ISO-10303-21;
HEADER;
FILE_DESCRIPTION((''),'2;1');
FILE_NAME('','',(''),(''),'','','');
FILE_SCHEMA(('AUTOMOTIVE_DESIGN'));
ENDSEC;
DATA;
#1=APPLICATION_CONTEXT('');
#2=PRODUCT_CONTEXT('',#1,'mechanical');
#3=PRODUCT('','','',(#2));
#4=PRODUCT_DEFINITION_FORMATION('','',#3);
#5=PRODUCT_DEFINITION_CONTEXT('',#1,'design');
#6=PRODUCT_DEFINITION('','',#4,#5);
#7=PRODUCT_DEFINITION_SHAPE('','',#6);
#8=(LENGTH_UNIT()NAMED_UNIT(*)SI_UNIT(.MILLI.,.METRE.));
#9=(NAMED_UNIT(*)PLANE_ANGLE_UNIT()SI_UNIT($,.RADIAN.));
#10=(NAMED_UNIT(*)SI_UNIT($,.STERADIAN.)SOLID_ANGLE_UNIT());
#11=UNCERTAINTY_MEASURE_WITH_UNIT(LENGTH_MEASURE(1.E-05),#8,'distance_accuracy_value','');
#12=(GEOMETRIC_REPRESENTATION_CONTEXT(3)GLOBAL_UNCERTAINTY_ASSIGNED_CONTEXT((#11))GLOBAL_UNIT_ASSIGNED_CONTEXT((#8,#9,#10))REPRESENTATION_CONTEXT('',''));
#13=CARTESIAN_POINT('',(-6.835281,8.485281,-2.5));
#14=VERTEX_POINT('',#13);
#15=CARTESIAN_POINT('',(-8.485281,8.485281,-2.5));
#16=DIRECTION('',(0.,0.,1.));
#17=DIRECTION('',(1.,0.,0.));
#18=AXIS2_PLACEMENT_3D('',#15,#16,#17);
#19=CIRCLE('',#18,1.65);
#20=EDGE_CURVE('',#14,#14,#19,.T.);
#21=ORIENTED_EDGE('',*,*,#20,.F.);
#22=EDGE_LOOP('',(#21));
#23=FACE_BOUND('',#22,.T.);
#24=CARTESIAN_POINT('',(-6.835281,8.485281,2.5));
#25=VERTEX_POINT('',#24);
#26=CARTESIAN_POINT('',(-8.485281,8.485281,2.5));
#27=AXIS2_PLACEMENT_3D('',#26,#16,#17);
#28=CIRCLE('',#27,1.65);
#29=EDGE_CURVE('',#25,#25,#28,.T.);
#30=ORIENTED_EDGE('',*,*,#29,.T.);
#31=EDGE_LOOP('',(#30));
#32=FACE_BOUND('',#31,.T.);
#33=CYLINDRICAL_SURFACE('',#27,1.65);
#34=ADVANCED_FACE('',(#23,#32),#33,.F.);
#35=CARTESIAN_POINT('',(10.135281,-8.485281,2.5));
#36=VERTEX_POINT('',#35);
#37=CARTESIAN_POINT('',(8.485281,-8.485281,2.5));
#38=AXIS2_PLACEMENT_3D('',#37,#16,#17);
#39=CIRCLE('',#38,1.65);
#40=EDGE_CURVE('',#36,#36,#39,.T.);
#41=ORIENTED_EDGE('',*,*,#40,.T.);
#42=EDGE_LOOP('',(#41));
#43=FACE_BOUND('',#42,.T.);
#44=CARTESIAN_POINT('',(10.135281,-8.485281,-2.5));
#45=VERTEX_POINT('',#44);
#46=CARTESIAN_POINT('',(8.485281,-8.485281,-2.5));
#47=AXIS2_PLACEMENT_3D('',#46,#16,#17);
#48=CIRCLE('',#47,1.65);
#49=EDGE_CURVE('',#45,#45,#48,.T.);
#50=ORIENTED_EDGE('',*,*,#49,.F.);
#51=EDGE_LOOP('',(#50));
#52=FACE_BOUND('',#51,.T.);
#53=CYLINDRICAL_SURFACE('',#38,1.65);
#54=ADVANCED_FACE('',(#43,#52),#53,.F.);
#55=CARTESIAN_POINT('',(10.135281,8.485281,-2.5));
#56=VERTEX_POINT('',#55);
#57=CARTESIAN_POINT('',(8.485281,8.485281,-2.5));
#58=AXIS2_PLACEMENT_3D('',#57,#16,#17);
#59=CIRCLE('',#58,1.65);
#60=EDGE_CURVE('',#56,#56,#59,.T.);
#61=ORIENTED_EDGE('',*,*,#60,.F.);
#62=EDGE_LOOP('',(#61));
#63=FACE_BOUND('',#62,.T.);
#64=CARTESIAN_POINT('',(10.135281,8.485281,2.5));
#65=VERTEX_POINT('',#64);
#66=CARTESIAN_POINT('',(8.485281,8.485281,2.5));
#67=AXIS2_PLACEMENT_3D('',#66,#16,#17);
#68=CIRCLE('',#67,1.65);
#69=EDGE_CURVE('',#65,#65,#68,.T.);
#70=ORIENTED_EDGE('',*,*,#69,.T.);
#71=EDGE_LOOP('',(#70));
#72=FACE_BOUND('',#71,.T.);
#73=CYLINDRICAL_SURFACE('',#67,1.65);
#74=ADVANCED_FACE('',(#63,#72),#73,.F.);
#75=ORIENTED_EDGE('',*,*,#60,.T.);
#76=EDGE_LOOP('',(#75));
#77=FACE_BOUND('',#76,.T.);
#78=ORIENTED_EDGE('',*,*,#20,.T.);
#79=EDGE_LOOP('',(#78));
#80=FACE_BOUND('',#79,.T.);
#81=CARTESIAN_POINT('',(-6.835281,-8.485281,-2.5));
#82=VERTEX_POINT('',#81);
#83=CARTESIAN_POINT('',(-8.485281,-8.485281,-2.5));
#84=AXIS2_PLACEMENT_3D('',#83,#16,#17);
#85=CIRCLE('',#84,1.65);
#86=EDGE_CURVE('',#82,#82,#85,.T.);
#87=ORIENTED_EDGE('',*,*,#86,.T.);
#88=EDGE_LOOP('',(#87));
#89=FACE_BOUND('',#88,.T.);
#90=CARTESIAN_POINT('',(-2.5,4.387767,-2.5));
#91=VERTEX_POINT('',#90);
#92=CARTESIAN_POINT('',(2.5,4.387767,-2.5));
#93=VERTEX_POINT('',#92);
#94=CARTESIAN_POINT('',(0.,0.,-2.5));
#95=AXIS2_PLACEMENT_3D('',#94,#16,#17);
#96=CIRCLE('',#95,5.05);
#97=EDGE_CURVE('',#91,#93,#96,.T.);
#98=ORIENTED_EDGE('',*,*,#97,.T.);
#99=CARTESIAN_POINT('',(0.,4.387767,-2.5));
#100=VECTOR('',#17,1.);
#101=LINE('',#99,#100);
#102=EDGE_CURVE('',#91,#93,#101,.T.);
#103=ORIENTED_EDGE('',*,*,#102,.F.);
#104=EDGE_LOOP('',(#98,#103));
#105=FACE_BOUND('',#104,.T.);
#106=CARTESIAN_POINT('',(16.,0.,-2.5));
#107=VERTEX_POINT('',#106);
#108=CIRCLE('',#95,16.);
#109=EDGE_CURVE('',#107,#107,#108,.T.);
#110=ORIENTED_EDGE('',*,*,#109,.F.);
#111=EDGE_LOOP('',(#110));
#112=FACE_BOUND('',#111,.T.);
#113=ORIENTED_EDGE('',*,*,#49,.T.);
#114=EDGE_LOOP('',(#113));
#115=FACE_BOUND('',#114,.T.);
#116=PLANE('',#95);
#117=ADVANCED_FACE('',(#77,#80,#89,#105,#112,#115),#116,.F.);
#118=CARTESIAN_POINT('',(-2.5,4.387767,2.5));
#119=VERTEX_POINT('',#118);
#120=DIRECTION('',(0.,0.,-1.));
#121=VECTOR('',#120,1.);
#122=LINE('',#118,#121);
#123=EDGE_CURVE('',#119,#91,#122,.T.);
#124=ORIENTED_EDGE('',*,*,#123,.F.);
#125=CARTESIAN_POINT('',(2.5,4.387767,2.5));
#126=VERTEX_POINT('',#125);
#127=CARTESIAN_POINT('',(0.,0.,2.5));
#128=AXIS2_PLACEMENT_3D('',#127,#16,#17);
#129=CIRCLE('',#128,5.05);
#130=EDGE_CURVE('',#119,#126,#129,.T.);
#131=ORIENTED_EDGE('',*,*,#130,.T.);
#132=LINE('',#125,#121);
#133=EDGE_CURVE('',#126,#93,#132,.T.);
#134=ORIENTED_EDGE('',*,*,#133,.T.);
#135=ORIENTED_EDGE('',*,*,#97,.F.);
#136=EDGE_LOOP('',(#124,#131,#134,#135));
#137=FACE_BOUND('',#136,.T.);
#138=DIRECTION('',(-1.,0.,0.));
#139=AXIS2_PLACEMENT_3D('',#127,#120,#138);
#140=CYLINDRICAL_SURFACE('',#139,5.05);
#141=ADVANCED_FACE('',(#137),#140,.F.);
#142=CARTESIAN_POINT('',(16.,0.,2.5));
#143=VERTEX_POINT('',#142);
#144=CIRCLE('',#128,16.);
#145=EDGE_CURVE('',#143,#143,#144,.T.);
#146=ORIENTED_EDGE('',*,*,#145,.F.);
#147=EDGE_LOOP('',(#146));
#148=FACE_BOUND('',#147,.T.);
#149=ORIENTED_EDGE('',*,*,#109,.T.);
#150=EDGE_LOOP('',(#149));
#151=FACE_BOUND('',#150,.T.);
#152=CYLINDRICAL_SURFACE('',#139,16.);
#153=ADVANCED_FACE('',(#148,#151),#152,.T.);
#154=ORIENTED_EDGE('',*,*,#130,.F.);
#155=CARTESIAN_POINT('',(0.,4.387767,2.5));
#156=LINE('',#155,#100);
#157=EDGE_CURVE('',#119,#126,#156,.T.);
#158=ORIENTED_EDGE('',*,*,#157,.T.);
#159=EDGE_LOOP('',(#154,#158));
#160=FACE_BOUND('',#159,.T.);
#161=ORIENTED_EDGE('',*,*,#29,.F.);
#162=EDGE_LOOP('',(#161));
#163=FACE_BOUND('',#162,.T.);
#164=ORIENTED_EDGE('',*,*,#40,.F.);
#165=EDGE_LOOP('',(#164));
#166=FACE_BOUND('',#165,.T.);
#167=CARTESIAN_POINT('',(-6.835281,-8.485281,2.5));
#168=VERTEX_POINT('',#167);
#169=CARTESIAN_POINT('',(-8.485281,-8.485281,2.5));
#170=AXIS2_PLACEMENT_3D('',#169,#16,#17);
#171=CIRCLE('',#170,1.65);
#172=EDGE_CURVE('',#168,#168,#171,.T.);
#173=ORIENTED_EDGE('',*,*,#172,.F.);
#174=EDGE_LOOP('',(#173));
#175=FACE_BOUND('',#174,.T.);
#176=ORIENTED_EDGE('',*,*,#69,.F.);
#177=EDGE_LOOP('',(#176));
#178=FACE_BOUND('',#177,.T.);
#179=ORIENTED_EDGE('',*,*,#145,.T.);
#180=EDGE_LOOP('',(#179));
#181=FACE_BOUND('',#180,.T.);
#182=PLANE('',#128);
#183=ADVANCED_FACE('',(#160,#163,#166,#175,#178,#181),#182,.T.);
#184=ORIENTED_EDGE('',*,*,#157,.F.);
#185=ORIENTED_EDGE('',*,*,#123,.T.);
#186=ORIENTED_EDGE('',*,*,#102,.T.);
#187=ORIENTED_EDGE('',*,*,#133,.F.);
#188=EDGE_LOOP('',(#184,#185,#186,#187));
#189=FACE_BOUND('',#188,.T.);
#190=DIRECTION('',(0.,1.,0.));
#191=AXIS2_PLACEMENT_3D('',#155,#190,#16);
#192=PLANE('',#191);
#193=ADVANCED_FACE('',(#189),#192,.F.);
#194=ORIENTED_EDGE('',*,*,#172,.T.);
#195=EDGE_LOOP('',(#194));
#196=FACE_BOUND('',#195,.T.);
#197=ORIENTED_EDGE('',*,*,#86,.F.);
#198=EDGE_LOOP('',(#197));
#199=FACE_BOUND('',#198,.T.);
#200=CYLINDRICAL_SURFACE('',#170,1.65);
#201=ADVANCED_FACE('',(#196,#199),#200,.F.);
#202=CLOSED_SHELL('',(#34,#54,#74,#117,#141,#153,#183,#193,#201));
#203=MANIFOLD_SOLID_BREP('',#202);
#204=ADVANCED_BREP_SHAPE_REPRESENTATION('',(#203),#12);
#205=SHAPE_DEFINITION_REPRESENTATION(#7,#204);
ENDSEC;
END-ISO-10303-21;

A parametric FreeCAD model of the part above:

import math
import FreeCAD as App
import Part
import Sketcher
Q = App.Units.Quantity

doc = App.newDocument("Part")
params = doc.addObject("Spreadsheet::Sheet", "Params")
for row, (alias, value) in enumerate([
    ("sketch1_diameter", "32 mm"),
    ("sketch1_width", "5 mm"),
    ("sketch1_radius", "5.05 mm"),
    ("pad1_length", "5 mm"),
    ("sketch2_diameter", "3.3 mm"),
    ("hole_diameter", "3.3 mm"),
], start=1):
    params.set(f"A{row}", alias)
    params.set(f"B{row}", "=" + value)
    params.setAlias(f"B{row}", alias)

body = doc.addObject("PartDesign::Body", "Body")

# Sketch on XY plane
sketch1 = doc.addObject("Sketcher::SketchObject", "Sketch")
body.addObject(sketch1)
sketch1.AttachmentSupport = (doc.XY_Plane, [""])
sketch1.MapMode = "FlatFace"
sketch1.addGeometry([
    Part.Circle(App.Vector(0, 0, 0), App.Vector(0, 0, 1), 16),
    Part.ArcOfCircle(Part.Circle(App.Vector(0, 0, 0), App.Vector(0, 0, 1), 5), math.radians(120), math.radians(420)),
    Part.LineSegment(App.Vector(-2, 4, 0), App.Vector(2, 4, 0)),
], False)
sketch1.addConstraint([
    Sketcher.Constraint("Coincident", 1, 1, 2, 1),
    Sketcher.Constraint("Coincident", 2, 2, 1, 2),
    Sketcher.Constraint("Horizontal", 2),
    Sketcher.Constraint("Coincident", 0, 3, -1, 1),
    Sketcher.Constraint("Coincident", 1, 3, -1, 1),
    Sketcher.Constraint("Diameter", 0, Q("32 mm")),
    Sketcher.Constraint("DistanceX", 2, 1, 2, 2, Q("5 mm")),
    Sketcher.Constraint("Radius", 1, Q("5.05 mm")),
])
sketch1.setExpression("Constraints[5]", "Params.sketch1_diameter")
sketch1.setExpression("Constraints[6]", "Params.sketch1_width")
sketch1.setExpression("Constraints[7]", "Params.sketch1_radius")
pad1 = doc.addObject("PartDesign::Pad", "Pad")
body.addObject(pad1)
pad1.Profile = sketch1
pad1.setExpression("Length", "Params.pad1_length")
pad1.Midplane = True

# Sketch on XY plane
sketch2 = doc.addObject("Sketcher::SketchObject", "Sketch001")
body.addObject(sketch2)
sketch2.AttachmentSupport = (doc.XY_Plane, [""])
sketch2.MapMode = "FlatFace"
sketch2.AttachmentOffset = App.Placement(App.Vector(0, 0, 2.5), App.Rotation())
sketch2.addGeometry([
    Part.Circle(App.Vector(8.5, 8.5, 0), App.Vector(0, 0, 1), 1.6),
    Part.Circle(App.Vector(-8.5, 8.5, 0), App.Vector(0, 0, 1), 1.6),
    Part.Circle(App.Vector(-8.5, -8.5, 0), App.Vector(0, 0, 1), 1.6),
    Part.Circle(App.Vector(8.5, -8.5, 0), App.Vector(0, 0, 1), 1.6),
], False)
sketch2.addConstraint([
    Sketcher.Constraint("Equal", 0, 1),
    Sketcher.Constraint("Equal", 1, 2),
    Sketcher.Constraint("Equal", 2, 3),
    Sketcher.Constraint("Symmetric", 0, 3, 2, 3, -1, 1),
    Sketcher.Constraint("Symmetric", 1, 3, 3, 3, -1, 1),
    Sketcher.Constraint("Symmetric", 0, 3, 1, 3, -2),
    Sketcher.Constraint("Diameter", 0, Q("3.3 mm")),
    Sketcher.Constraint("DistanceX", -1, 1, 0, 3, Q("8.485281 mm")),
    Sketcher.Constraint("DistanceY", -1, 1, 0, 3, Q("8.485281 mm")),
])
sketch2.setExpression("Constraints[6]", "Params.sketch2_diameter")
doc.recompute()
hole = doc.addObject("PartDesign::Hole", "Hole")
body.addObject(hole)
hole.Profile = sketch2
hole.ThreadType = "None"
hole.setExpression("Diameter", "Params.hole_diameter")
hole.DepthType = "ThroughAll"

doc.recompute()
